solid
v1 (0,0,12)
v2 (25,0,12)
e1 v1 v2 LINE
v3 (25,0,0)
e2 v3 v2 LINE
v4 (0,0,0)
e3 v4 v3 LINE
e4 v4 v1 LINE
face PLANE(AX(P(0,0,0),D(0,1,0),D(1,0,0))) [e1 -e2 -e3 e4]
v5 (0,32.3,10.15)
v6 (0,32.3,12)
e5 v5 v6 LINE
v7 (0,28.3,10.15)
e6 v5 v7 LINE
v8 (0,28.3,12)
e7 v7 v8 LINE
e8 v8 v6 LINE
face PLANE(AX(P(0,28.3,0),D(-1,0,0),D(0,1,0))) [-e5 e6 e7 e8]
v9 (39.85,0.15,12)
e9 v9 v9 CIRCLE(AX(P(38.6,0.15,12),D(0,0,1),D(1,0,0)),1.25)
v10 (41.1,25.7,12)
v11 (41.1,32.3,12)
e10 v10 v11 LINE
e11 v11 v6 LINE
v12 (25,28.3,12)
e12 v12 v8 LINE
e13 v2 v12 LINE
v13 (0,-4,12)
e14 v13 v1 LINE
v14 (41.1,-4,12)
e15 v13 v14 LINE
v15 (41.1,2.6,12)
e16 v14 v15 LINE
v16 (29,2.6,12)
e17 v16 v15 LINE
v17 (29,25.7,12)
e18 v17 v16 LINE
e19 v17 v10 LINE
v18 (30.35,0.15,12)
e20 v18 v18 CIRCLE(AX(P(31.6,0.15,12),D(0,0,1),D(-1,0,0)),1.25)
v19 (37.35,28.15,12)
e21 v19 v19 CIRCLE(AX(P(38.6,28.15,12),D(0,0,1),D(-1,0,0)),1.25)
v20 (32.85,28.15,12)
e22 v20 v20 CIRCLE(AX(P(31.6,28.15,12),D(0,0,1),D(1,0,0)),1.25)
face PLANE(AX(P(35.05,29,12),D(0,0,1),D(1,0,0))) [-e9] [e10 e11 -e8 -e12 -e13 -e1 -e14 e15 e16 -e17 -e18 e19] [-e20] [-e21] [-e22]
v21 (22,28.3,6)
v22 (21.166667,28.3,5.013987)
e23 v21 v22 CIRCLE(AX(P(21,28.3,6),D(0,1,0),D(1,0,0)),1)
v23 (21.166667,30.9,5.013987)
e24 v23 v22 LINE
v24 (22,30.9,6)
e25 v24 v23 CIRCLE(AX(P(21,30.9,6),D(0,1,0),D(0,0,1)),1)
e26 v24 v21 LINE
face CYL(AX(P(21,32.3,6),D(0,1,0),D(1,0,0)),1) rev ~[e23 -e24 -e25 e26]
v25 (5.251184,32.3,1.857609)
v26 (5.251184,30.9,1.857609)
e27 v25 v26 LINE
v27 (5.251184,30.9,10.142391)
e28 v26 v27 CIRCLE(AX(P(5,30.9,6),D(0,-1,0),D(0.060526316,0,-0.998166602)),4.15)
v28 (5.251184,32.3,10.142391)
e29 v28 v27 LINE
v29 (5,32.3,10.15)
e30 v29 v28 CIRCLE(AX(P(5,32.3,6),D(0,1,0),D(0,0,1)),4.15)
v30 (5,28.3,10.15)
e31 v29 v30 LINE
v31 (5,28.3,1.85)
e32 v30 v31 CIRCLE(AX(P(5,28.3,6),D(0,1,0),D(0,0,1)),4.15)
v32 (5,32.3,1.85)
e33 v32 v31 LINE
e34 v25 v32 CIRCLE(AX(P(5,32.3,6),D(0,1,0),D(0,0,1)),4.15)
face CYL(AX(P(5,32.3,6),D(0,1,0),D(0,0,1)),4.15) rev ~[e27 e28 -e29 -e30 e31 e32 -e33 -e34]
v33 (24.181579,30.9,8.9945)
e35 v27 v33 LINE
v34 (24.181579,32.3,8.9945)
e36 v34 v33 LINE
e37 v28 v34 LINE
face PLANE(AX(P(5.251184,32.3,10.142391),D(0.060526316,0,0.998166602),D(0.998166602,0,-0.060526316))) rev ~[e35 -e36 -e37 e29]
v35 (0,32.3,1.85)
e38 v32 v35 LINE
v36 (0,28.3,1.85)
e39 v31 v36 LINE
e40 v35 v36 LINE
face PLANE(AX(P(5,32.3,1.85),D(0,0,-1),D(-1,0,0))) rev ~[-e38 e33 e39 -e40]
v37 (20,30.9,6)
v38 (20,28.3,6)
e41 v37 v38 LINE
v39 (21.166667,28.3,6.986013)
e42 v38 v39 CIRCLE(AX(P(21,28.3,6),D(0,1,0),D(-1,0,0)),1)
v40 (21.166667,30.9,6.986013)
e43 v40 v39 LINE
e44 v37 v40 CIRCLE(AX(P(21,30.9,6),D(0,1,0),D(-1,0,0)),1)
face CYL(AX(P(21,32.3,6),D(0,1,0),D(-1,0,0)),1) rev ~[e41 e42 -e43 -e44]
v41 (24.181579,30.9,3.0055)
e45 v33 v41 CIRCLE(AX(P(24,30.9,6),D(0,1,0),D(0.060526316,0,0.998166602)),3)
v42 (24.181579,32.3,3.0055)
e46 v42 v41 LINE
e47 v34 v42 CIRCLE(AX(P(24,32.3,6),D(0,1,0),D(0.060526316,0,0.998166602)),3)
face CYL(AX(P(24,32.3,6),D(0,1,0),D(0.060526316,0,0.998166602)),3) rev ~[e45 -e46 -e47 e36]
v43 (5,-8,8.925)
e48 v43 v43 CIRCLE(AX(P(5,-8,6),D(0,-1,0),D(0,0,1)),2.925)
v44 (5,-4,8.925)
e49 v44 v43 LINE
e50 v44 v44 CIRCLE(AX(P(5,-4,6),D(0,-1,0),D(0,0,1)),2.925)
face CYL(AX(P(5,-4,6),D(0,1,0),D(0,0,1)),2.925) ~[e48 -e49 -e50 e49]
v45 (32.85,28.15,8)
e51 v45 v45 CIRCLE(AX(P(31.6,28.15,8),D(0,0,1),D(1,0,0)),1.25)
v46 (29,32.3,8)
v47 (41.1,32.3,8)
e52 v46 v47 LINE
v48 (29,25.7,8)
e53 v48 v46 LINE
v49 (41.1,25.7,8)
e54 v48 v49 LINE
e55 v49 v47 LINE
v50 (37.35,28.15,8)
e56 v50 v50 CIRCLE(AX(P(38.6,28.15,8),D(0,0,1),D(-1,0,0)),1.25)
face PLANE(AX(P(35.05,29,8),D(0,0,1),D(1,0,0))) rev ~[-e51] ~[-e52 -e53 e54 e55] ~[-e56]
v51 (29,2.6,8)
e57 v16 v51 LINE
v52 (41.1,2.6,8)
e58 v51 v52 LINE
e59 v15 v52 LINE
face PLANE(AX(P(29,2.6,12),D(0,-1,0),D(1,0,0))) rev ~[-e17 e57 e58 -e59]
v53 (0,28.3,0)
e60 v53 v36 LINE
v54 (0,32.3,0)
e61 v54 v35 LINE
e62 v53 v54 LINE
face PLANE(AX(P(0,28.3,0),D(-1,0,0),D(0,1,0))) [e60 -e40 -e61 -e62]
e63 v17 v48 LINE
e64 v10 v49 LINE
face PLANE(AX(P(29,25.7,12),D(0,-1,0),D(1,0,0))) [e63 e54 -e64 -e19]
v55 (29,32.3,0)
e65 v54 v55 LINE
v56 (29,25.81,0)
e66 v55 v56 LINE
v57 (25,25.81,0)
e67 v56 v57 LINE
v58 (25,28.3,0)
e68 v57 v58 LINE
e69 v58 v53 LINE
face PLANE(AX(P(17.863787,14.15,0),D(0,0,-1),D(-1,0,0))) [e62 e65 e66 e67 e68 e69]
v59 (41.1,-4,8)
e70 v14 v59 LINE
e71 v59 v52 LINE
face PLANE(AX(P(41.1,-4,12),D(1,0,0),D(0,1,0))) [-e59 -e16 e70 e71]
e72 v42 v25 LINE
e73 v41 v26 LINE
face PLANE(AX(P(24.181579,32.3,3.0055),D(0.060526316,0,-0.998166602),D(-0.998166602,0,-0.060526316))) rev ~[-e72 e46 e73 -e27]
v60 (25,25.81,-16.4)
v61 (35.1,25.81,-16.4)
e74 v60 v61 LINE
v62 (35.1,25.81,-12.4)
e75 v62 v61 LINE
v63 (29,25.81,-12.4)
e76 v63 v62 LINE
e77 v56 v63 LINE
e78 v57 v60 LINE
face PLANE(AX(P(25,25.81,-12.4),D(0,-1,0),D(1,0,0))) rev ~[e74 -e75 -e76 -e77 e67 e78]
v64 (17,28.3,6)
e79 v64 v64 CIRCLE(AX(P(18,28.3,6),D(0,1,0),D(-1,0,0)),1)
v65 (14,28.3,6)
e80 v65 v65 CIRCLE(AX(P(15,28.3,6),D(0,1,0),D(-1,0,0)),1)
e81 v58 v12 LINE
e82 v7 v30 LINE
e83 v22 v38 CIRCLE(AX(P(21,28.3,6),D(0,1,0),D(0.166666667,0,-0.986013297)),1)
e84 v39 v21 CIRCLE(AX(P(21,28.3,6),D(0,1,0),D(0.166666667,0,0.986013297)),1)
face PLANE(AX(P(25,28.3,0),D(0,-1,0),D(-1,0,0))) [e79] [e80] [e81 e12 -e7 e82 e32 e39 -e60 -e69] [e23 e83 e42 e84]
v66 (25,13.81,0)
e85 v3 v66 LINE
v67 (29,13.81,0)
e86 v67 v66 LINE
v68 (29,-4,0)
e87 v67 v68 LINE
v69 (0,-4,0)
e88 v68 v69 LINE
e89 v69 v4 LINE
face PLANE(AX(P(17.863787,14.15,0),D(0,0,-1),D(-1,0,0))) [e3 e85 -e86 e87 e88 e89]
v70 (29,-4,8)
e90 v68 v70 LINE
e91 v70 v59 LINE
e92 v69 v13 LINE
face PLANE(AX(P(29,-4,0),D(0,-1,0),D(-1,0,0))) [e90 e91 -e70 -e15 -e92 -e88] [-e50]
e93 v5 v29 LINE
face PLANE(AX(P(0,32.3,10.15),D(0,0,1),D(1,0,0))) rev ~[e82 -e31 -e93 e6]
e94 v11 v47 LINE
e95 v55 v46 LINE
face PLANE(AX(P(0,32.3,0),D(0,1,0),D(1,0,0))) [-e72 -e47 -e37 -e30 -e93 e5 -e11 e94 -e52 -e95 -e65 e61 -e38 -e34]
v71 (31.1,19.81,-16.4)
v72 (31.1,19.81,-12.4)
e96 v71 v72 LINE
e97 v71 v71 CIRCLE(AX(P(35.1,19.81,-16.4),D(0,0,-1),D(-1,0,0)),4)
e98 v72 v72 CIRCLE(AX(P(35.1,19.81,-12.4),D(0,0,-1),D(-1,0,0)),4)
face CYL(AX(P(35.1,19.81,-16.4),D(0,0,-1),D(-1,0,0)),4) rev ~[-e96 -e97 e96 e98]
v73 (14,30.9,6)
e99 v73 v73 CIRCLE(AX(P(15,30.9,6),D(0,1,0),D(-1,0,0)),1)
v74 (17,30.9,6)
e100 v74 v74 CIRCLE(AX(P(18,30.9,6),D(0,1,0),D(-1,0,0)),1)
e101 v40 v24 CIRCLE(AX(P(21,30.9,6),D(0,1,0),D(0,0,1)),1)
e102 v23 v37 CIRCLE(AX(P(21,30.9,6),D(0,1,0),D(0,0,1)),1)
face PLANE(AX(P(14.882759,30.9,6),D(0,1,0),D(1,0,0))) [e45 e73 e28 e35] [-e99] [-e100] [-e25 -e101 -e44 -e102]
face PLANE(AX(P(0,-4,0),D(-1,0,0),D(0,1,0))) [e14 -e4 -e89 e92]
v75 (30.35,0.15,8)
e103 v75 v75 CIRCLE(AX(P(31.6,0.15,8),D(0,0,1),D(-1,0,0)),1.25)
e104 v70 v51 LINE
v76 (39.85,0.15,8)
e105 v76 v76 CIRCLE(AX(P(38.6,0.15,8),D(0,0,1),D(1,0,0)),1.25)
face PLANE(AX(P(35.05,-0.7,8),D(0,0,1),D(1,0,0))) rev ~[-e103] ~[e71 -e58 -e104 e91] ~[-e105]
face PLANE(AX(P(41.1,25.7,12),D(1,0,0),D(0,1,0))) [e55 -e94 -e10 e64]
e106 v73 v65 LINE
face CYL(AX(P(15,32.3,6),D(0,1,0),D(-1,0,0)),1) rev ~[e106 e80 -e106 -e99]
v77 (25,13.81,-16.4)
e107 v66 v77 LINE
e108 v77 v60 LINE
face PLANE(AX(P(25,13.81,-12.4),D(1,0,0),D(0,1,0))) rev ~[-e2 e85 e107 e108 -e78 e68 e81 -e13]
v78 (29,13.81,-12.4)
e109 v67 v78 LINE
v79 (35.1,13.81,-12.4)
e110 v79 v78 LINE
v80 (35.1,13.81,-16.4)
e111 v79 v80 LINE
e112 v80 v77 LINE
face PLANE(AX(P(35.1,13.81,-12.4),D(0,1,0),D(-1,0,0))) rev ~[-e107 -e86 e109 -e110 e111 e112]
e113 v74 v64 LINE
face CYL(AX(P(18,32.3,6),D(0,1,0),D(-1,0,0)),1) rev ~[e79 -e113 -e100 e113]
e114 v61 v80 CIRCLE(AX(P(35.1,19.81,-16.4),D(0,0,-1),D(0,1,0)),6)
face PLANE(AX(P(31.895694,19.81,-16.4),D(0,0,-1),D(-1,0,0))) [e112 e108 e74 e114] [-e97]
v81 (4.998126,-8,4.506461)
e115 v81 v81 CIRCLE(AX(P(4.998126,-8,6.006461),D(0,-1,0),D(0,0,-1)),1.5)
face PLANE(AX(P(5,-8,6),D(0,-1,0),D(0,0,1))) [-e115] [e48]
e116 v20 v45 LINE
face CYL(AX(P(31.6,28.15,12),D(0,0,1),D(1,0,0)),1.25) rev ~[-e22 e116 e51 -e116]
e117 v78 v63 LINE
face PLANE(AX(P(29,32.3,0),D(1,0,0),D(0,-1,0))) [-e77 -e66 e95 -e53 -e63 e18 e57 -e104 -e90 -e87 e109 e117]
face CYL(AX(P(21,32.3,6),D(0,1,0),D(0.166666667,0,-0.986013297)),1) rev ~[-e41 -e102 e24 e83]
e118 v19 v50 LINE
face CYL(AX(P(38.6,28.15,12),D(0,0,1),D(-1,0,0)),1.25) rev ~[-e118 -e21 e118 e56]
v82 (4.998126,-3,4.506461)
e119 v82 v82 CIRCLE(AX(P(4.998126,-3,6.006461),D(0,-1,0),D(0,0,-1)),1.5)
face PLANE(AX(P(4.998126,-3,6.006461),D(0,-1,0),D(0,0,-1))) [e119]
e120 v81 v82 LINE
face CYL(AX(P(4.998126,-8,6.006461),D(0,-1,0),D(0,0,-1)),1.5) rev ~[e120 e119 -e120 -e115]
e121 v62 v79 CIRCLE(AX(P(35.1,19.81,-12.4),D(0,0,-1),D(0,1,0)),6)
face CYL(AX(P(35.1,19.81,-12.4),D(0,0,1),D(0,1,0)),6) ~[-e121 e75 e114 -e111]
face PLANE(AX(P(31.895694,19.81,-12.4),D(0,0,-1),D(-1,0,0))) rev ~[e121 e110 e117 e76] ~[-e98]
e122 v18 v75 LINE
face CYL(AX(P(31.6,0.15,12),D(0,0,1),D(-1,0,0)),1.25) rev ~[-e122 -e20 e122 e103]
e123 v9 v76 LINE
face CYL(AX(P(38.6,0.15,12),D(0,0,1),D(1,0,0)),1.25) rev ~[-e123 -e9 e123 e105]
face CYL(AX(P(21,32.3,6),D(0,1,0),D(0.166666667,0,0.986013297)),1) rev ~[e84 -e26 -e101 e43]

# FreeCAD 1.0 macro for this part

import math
import FreeCAD as App
import Part
import Sketcher
from FreeCAD import Vector


def add_polygon(sketch, points):
    """Adds a closed chain of lines whose ends are joined by coincident constraints."""
    first, n = sketch.GeometryCount, len(points)
    for a, b in zip(points, points[1:] + points[:1]):
        sketch.addGeometry(Part.LineSegment(App.Vector(*a, 0), App.Vector(*b, 0)), False)
    for i in range(n):
        sketch.addConstraint(Sketcher.Constraint("Coincident", first + i, 2, first + (i + 1) % n, 1))

doc = App.newDocument("Part")
body = doc.addObject("PartDesign::Body", "Body")

# Sketch on XY plane
sketch1 = body.newObject("Sketcher::SketchObject", "Sketch")
sketch1.AttachmentSupport = (doc.getObject("XY_Plane"), [""])
sketch1.MapMode = "FlatFace"
add_polygon(sketch1, [(25, 0), (0, 0), (0, -4), (29, -4), (29, 32.3), (0, 32.3), (0, 28.3), (25, 28.3)])  # lines 0-7
sketch1.addConstraint([
    Sketcher.Constraint("Horizontal", 0),
    Sketcher.Constraint("Vertical", 1),
    Sketcher.Constraint("Horizontal", 2),
    Sketcher.Constraint("Vertical", 3),
    Sketcher.Constraint("Horizontal", 4),
    Sketcher.Constraint("Vertical", 5),
    Sketcher.Constraint("Horizontal", 6),
    Sketcher.Constraint("Vertical", 7),
    Sketcher.Constraint("Coincident", 0, 2, -1, 1),
    Sketcher.Constraint("PointOnObject", 4, 2, -2),
    Sketcher.Constraint("Equal", 1, 5),
    Sketcher.Constraint("DistanceX", 0, 2, 0, 1, 25.0),
    Sketcher.Constraint("DistanceX", 2, 1, 2, 2, 29.0),
    Sketcher.Constraint("DistanceY", 1, 2, 1, 1, 4.0),
    Sketcher.Constraint("DistanceY", 3, 1, 3, 2, 36.3),
])
pad1 = body.newObject("PartDesign::Pad", "Pad")
pad1.Profile = sketch1
pad1.Length = 12

# Sketch on XZ plane
sketch2 = body.newObject("Sketcher::SketchObject", "Sketch001")
sketch2.AttachmentSupport = (doc.getObject("XZ_Plane"), [""])
sketch2.MapMode = "FlatFace"
sketch2.AttachmentOffset = App.Placement(Vector(0, 0, 4), App.Rotation())
sketch2.addGeometry(Part.Circle(Vector(5, 6, 0), Vector(0, 0, 1), 2.9), False)
sketch2.addConstraint([
    Sketcher.Constraint("Diameter", 0, 5.85),
    Sketcher.Constraint("DistanceX", -1, 1, 0, 3, 5.0),
    Sketcher.Constraint("DistanceY", -1, 1, 0, 3, 6.0),
])
pad2 = body.newObject("PartDesign::Pad", "Pad001")
pad2.Profile = sketch2
pad2.Length = 4

# Sketch on XY plane
sketch3 = body.newObject("Sketcher::SketchObject", "Sketch002")
sketch3.AttachmentSupport = (doc.getObject("XY_Plane"), [""])
sketch3.MapMode = "FlatFace"
sketch3.AttachmentOffset = App.Placement(Vector(0, 0, 12), App.Rotation())
add_polygon(sketch3, [(29, 32.3), (29, 25.7), (41.1, 25.7), (41.1, 32.3)])  # lines 0-3
sketch3.addGeometry(Part.Circle(Vector(31.6, 28.1, 0), Vector(0, 0, 1), 1.2), False)  # 4
sketch3.addGeometry(Part.Circle(Vector(38.6, 28.1, 0), Vector(0, 0, 1), 1.2), False)  # 5
add_polygon(sketch3, [(29, 2.6), (29, -4), (41.1, -4), (41.1, 2.6)])  # lines 6-9
sketch3.addGeometry(Part.Circle(Vector(31.6, 0.1, 0), Vector(0, 0, 1), 1.2), False)  # 10
sketch3.addGeometry(Part.Circle(Vector(38.6, 0.1, 0), Vector(0, 0, 1), 1.2), False)  # 11
sketch3.addConstraint([
    Sketcher.Constraint("Vertical", 0),
    Sketcher.Constraint("Horizontal", 1),
    Sketcher.Constraint("Vertical", 2),
    Sketcher.Constraint("Horizontal", 3),
    Sketcher.Constraint("Vertical", 6),
    Sketcher.Constraint("Horizontal", 7),
    Sketcher.Constraint("Vertical", 8),
    Sketcher.Constraint("Horizontal", 9),
    Sketcher.Constraint("Equal", 4, 5),
    Sketcher.Constraint("Equal", 5, 10),
    Sketcher.Constraint("Equal", 10, 11),
    Sketcher.Constraint("Horizontal", 4, 3, 5, 3),
    Sketcher.Constraint("Horizontal", 10, 3, 11, 3),
    Sketcher.Constraint("Vertical", 4, 3, 10, 3),
    Sketcher.Constraint("Vertical", 5, 3, 11, 3),
    Sketcher.Constraint("Vertical", 3, 2, 6, 2),
    Sketcher.Constraint("Vertical", 2, 2, 7, 2),
    Sketcher.Constraint("Equal", 2, 6),
    Sketcher.Constraint("Diameter", 4, 2.5),
    Sketcher.Constraint("DistanceX", 1, 1, 1, 2, 12.1),
    Sketcher.Constraint("DistanceY", 0, 2, 0, 1, 6.6),
    Sketcher.Constraint("DistanceX", -1, 1, 0, 2, 29.0),
    Sketcher.Constraint("DistanceY", 6, 2, -1, 1, 4.0),
    Sketcher.Constraint("DistanceX", 4, 3, 5, 3, 7.0),
    Sketcher.Constraint("DistanceY", 10, 3, 4, 3, 28.0),
    Sketcher.Constraint("DistanceX", -1, 1, 4, 3, 31.6),
    Sketcher.Constraint("DistanceY", -1, 1, 0, 2, 25.7),
    Sketcher.Constraint("DistanceY", -1, 1, 4, 3, 28.15),
])
pad3 = body.newObject("PartDesign::Pad", "Pad002")
pad3.Profile = sketch3
pad3.Length = 4
pad3.Reversed = True

# Sketch on YZ plane
sketch4 = body.newObject("Sketcher::SketchObject", "Sketch003")
sketch4.AttachmentSupport = (doc.getObject("YZ_Plane"), [""])
sketch4.MapMode = "FlatFace"
sketch4.AttachmentOffset = App.Placement(Vector(0, 0, 29), App.Rotation())
add_polygon(sketch4, [(26, 0), (14, 0), (14, -12), (26, -12)])  # lines 0-3
sketch4.addConstraint([
    Sketcher.Constraint("Horizontal", 0),
    Sketcher.Constraint("Vertical", 1),
    Sketcher.Constraint("Horizontal", 2),
    Sketcher.Constraint("Vertical", 3),
    Sketcher.Constraint("PointOnObject", 0, 2, -1),
    Sketcher.Constraint("DistanceX", 0, 2, 0, 1, 12.0),
    Sketcher.Constraint("DistanceY", 1, 2, 1, 1, 12.4),
    Sketcher.Constraint("DistanceX", -1, 1, 0, 2, 13.81),
])
pad4 = body.newObject("PartDesign::Pad", "Pad003")
pad4.Profile = sketch4
pad4.Length = 4
pad4.Reversed = True

# Sketch on XY plane
sketch5 = body.newObject("Sketcher::SketchObject", "Sketch004")
sketch5.AttachmentSupport = (doc.getObject("XY_Plane"), [""])
sketch5.MapMode = "FlatFace"
sketch5.AttachmentOffset = App.Placement(Vector(0, 0, -12.4), App.Rotation())
sketch5.addGeometry([
    Part.LineSegment(Vector(35, 14, 0), Vector(25, 14, 0)),
    Part.LineSegment(Vector(25, 14, 0), Vector(25, 26, 0)),
    Part.LineSegment(Vector(25, 26, 0), Vector(35, 26, 0)),
    Part.ArcOfCircle(Part.Circle(Vector(35, 20, 0), Vector(0, 0, 1), 6), math.radians(-90), math.radians(90)),
], False)
sketch5.addConstraint([
    Sketcher.Constraint("Coincident", 0, 2, 1, 1),
    Sketcher.Constraint("Coincident", 1, 2, 2, 1),
    Sketcher.Constraint("Tangent", 2, 2, 3, 2),
    Sketcher.Constraint("Tangent", 3, 1, 0, 1),
    Sketcher.Constraint("Horizontal", 0),
    Sketcher.Constraint("Vertical", 1),
    Sketcher.Constraint("Horizontal", 2),
    Sketcher.Constraint("Radius", 3, 6.0),
    Sketcher.Constraint("DistanceX", 0, 2, 0, 1, 10.1),
    Sketcher.Constraint("DistanceX", -1, 1, 0, 2, 25.0),
    Sketcher.Constraint("DistanceY", -1, 1, 3, 3, 19.81),
])
pad5 = body.newObject("PartDesign::Pad", "Pad004")
pad5.Profile = sketch5
pad5.Length = 4
pad5.Reversed = True

# Sketch on XY plane
sketch6 = body.newObject("Sketcher::SketchObject", "Sketch005")
sketch6.AttachmentSupport = (doc.getObject("XY_Plane"), [""])
sketch6.MapMode = "FlatFace"
sketch6.AttachmentOffset = App.Placement(Vector(0, 0, -16.4), App.Rotation())
sketch6.addGeometry(Part.Circle(Vector(35.1, 19.8, 0), Vector(0, 0, 1), 4), False)
sketch6.addConstraint([
    Sketcher.Constraint("Diameter", 0, 8.0),
    Sketcher.Constraint("DistanceX", -1, 1, 0, 3, 35.1),
    Sketcher.Constraint("DistanceY", -1, 1, 0, 3, 19.81),
])
pocket1 = body.newObject("PartDesign::Pocket", "Pocket")
pocket1.Profile = sketch6
pocket1.Length = 4
pocket1.Reversed = True

# Sketch on XZ plane
sketch7 = body.newObject("Sketcher::SketchObject", "Sketch006")
sketch7.AttachmentSupport = (doc.getObject("XZ_Plane"), [""])
sketch7.MapMode = "FlatFace"
sketch7.AttachmentOffset = App.Placement(Vector(0, 0, -32.3), App.Rotation())
sketch7.addGeometry([
    Part.LineSegment(Vector(0, 1.9, 0), Vector(0, 10.2, 0)),
    Part.LineSegment(Vector(0, 10.2, 0), Vector(5, 10.2, 0)),
    Part.ArcOfCircle(Part.Circle(Vector(5, 6, 0), Vector(0, 0, 1), 4.2), math.radians(-90), math.radians(90)),
    Part.LineSegment(Vector(5, 1.9, 0), Vector(0, 1.9, 0)),
], False)
sketch7.addConstraint([
    Sketcher.Constraint("Coincident", 0, 2, 1, 1),
    Sketcher.Constraint("Tangent", 1, 2, 2, 2),
    Sketcher.Constraint("Tangent", 2, 1, 3, 1),
    Sketcher.Constraint("Coincident", 3, 2, 0, 1),
    Sketcher.Constraint("Vertical", 0),
    Sketcher.Constraint("Horizontal", 1),
    Sketcher.Constraint("Horizontal", 3),
    Sketcher.Constraint("PointOnObject", 0, 2, -2),
    Sketcher.Constraint("DistanceX", 1, 1, 1, 2, 5.0),
    Sketcher.Constraint("Radius", 2, 4.15),
    Sketcher.Constraint("DistanceY", -1, 1, 2, 3, 6.0),
])
pocket2 = body.newObject("PartDesign::Pocket", "Pocket001")
pocket2.Profile = sketch7
pocket2.Length = 4
pocket2.Reversed = True

# Sketch on XZ plane
sketch8 = body.newObject("Sketcher::SketchObject", "Sketch007")
sketch8.AttachmentSupport = (doc.getObject("XZ_Plane"), [""])
sketch8.MapMode = "FlatFace"
sketch8.AttachmentOffset = App.Placement(Vector(0, 0, -32.3), App.Rotation())
sketch8.addGeometry([
    Part.ArcOfCircle(Part.Circle(Vector(5, 6, 0), Vector(0, 0, 1), 4.2), math.radians(-87), math.radians(87)),  # 0
    Part.LineSegment(Vector(5.3, 10.1, 0), Vector(24.2, 9, 0)),  # 1
    Part.ArcOfCircle(Part.Circle(Vector(24, 6, 0), Vector(0, 0, 1), 3), math.radians(-87), math.radians(87)),  # 2
    Part.LineSegment(Vector(24.2, 3, 0), Vector(5.3, 1.9, 0)),  # 3
    Part.Circle(Vector(15, 6, 0), Vector(0, 0, 1), 1),  # 4
    Part.Circle(Vector(18, 6, 0), Vector(0, 0, 1), 1),  # 5
    Part.Circle(Vector(21, 6, 0), Vector(0, 0, 1), 1),  # 6
], False)
sketch8.addConstraint([
    Sketcher.Constraint("Tangent", 0, 2, 1, 1),
    Sketcher.Constraint("Tangent", 1, 2, 2, 2),
    Sketcher.Constraint("Tangent", 2, 1, 3, 1),
    Sketcher.Constraint("Tangent", 3, 2, 0, 1),
    Sketcher.Constraint("Equal", 4, 5),
    Sketcher.Constraint("Equal", 5, 6),
    Sketcher.Constraint("Horizontal", 0, 3, 2, 3),
    Sketcher.Constraint("Horizontal", 2, 3, 4, 3),
    Sketcher.Constraint("Horizontal", 4, 3, 5, 3),
    Sketcher.Constraint("Horizontal", 5, 3, 6, 3),
    Sketcher.Constraint("Diameter", 4, 2.0),
    Sketcher.Constraint("Radius", 2, 3.0),
    Sketcher.Constraint("Radius", 0, 4.15),
    Sketcher.Constraint("DistanceX", -1, 1, 0, 3, 5.0),
    Sketcher.Constraint("DistanceY", -1, 1, 0, 3, 6.0),
    Sketcher.Constraint("DistanceX", -1, 1, 2, 3, 24.0),
    Sketcher.Constraint("DistanceX", -1, 1, 4, 3, 15.0),
    Sketcher.Constraint("DistanceX", -1, 1, 5, 3, 18.0),
    Sketcher.Constraint("DistanceX", -1, 1, 6, 3, 21.0),
])
pocket3 = body.newObject("PartDesign::Pocket", "Pocket002")
pocket3.Profile = sketch8
pocket3.Length = 1.4
pocket3.Reversed = True

# Sketch on XZ plane
sketch9 = body.newObject("Sketcher::SketchObject", "Sketch008")
sketch9.AttachmentSupport = (doc.getObject("XZ_Plane"), [""])
sketch9.MapMode = "FlatFace"
sketch9.AttachmentOffset = App.Placement(Vector(0, 0, -32.3), App.Rotation())
sketch9.addGeometry([
    Part.Circle(Vector(15, 6, 0), Vector(0, 0, 1), 1),  # 0
    Part.Circle(Vector(18, 6, 0), Vector(0, 0, 1), 1),  # 1
    Part.ArcOfCircle(Part.Circle(Vector(21, 6, 0), Vector(0, 0, 1), 1), math.radians(80), math.radians(180)),  # 2
    Part.ArcOfCircle(Part.Circle(Vector(21, 6, 0), Vector(0, 0, 1), 1), math.radians(0), math.radians(80)),  # 3
    Part.ArcOfCircle(Part.Circle(Vector(21, 6, 0), Vector(0, 0, 1), 1), math.radians(-80), math.radians(0)),  # 4
    Part.ArcOfCircle(Part.Circle(Vector(21, 6, 0), Vector(0, 0, 1), 1), math.radians(180), math.radians(280)),  # 5
], False)
sketch9.addConstraint([
    Sketcher.Constraint("Tangent", 2, 1, 3, 2),
    Sketcher.Constraint("Tangent", 3, 1, 4, 2),
    Sketcher.Constraint("Tangent", 4, 1, 5, 2),
    Sketcher.Constraint("Tangent", 5, 1, 2, 2),
    Sketcher.Constraint("Equal", 0, 1),
    Sketcher.Constraint("Equal", 1, 2),
    Sketcher.Constraint("Equal", 2, 3),
    Sketcher.Constraint("Horizontal", 0, 3, 1, 3),
    Sketcher.Constraint("Horizontal", 1, 3, 2, 3),
    Sketcher.Constraint("Horizontal", 5, 3, 3, 1),
    Sketcher.Constraint("Horizontal", 3, 1, 5, 1),
    Sketcher.Constraint("Vertical", 2, 1, 4, 1),
    Sketcher.Constraint("Diameter", 0, 2.0),
    Sketcher.Constraint("DistanceX", -1, 1, 0, 3, 15.0),
    Sketcher.Constraint("DistanceY", -1, 1, 0, 3, 6.0),
    Sketcher.Constraint("DistanceX", -1, 1, 1, 3, 18.0),
    Sketcher.Constraint("DistanceX", -1, 1, 2, 3, 21.0),
    Sketcher.Constraint("DistanceX", -1, 1, 2, 1, 21.166667),
])
pocket4 = body.newObject("PartDesign::Pocket", "Pocket003")
pocket4.Profile = sketch9
pocket4.Length = 4
pocket4.Reversed = True

# Sketch on XZ plane
sketch10 = body.newObject("Sketcher::SketchObject", "Sketch009")
sketch10.AttachmentSupport = (doc.getObject("XZ_Plane"), [""])
sketch10.MapMode = "FlatFace"
sketch10.AttachmentOffset = App.Placement(Vector(0, 0, 8), App.Rotation())
sketch10.addGeometry(Part.Circle(Vector(5, 6, 0), Vector(0, 0, 1), 1.5), False)
sketch10.addConstraint([
    Sketcher.Constraint("Diameter", 0, 3.0),
    Sketcher.Constraint("DistanceY", -1, 1, 0, 3, 6.006461),
    Sketcher.Constraint("DistanceX", -1, 1, 0, 3, 4.998126),
])
pocket5 = body.newObject("PartDesign::Pocket", "Pocket004")
pocket5.Profile = sketch10
pocket5.Length = 5

doc.recompute()
